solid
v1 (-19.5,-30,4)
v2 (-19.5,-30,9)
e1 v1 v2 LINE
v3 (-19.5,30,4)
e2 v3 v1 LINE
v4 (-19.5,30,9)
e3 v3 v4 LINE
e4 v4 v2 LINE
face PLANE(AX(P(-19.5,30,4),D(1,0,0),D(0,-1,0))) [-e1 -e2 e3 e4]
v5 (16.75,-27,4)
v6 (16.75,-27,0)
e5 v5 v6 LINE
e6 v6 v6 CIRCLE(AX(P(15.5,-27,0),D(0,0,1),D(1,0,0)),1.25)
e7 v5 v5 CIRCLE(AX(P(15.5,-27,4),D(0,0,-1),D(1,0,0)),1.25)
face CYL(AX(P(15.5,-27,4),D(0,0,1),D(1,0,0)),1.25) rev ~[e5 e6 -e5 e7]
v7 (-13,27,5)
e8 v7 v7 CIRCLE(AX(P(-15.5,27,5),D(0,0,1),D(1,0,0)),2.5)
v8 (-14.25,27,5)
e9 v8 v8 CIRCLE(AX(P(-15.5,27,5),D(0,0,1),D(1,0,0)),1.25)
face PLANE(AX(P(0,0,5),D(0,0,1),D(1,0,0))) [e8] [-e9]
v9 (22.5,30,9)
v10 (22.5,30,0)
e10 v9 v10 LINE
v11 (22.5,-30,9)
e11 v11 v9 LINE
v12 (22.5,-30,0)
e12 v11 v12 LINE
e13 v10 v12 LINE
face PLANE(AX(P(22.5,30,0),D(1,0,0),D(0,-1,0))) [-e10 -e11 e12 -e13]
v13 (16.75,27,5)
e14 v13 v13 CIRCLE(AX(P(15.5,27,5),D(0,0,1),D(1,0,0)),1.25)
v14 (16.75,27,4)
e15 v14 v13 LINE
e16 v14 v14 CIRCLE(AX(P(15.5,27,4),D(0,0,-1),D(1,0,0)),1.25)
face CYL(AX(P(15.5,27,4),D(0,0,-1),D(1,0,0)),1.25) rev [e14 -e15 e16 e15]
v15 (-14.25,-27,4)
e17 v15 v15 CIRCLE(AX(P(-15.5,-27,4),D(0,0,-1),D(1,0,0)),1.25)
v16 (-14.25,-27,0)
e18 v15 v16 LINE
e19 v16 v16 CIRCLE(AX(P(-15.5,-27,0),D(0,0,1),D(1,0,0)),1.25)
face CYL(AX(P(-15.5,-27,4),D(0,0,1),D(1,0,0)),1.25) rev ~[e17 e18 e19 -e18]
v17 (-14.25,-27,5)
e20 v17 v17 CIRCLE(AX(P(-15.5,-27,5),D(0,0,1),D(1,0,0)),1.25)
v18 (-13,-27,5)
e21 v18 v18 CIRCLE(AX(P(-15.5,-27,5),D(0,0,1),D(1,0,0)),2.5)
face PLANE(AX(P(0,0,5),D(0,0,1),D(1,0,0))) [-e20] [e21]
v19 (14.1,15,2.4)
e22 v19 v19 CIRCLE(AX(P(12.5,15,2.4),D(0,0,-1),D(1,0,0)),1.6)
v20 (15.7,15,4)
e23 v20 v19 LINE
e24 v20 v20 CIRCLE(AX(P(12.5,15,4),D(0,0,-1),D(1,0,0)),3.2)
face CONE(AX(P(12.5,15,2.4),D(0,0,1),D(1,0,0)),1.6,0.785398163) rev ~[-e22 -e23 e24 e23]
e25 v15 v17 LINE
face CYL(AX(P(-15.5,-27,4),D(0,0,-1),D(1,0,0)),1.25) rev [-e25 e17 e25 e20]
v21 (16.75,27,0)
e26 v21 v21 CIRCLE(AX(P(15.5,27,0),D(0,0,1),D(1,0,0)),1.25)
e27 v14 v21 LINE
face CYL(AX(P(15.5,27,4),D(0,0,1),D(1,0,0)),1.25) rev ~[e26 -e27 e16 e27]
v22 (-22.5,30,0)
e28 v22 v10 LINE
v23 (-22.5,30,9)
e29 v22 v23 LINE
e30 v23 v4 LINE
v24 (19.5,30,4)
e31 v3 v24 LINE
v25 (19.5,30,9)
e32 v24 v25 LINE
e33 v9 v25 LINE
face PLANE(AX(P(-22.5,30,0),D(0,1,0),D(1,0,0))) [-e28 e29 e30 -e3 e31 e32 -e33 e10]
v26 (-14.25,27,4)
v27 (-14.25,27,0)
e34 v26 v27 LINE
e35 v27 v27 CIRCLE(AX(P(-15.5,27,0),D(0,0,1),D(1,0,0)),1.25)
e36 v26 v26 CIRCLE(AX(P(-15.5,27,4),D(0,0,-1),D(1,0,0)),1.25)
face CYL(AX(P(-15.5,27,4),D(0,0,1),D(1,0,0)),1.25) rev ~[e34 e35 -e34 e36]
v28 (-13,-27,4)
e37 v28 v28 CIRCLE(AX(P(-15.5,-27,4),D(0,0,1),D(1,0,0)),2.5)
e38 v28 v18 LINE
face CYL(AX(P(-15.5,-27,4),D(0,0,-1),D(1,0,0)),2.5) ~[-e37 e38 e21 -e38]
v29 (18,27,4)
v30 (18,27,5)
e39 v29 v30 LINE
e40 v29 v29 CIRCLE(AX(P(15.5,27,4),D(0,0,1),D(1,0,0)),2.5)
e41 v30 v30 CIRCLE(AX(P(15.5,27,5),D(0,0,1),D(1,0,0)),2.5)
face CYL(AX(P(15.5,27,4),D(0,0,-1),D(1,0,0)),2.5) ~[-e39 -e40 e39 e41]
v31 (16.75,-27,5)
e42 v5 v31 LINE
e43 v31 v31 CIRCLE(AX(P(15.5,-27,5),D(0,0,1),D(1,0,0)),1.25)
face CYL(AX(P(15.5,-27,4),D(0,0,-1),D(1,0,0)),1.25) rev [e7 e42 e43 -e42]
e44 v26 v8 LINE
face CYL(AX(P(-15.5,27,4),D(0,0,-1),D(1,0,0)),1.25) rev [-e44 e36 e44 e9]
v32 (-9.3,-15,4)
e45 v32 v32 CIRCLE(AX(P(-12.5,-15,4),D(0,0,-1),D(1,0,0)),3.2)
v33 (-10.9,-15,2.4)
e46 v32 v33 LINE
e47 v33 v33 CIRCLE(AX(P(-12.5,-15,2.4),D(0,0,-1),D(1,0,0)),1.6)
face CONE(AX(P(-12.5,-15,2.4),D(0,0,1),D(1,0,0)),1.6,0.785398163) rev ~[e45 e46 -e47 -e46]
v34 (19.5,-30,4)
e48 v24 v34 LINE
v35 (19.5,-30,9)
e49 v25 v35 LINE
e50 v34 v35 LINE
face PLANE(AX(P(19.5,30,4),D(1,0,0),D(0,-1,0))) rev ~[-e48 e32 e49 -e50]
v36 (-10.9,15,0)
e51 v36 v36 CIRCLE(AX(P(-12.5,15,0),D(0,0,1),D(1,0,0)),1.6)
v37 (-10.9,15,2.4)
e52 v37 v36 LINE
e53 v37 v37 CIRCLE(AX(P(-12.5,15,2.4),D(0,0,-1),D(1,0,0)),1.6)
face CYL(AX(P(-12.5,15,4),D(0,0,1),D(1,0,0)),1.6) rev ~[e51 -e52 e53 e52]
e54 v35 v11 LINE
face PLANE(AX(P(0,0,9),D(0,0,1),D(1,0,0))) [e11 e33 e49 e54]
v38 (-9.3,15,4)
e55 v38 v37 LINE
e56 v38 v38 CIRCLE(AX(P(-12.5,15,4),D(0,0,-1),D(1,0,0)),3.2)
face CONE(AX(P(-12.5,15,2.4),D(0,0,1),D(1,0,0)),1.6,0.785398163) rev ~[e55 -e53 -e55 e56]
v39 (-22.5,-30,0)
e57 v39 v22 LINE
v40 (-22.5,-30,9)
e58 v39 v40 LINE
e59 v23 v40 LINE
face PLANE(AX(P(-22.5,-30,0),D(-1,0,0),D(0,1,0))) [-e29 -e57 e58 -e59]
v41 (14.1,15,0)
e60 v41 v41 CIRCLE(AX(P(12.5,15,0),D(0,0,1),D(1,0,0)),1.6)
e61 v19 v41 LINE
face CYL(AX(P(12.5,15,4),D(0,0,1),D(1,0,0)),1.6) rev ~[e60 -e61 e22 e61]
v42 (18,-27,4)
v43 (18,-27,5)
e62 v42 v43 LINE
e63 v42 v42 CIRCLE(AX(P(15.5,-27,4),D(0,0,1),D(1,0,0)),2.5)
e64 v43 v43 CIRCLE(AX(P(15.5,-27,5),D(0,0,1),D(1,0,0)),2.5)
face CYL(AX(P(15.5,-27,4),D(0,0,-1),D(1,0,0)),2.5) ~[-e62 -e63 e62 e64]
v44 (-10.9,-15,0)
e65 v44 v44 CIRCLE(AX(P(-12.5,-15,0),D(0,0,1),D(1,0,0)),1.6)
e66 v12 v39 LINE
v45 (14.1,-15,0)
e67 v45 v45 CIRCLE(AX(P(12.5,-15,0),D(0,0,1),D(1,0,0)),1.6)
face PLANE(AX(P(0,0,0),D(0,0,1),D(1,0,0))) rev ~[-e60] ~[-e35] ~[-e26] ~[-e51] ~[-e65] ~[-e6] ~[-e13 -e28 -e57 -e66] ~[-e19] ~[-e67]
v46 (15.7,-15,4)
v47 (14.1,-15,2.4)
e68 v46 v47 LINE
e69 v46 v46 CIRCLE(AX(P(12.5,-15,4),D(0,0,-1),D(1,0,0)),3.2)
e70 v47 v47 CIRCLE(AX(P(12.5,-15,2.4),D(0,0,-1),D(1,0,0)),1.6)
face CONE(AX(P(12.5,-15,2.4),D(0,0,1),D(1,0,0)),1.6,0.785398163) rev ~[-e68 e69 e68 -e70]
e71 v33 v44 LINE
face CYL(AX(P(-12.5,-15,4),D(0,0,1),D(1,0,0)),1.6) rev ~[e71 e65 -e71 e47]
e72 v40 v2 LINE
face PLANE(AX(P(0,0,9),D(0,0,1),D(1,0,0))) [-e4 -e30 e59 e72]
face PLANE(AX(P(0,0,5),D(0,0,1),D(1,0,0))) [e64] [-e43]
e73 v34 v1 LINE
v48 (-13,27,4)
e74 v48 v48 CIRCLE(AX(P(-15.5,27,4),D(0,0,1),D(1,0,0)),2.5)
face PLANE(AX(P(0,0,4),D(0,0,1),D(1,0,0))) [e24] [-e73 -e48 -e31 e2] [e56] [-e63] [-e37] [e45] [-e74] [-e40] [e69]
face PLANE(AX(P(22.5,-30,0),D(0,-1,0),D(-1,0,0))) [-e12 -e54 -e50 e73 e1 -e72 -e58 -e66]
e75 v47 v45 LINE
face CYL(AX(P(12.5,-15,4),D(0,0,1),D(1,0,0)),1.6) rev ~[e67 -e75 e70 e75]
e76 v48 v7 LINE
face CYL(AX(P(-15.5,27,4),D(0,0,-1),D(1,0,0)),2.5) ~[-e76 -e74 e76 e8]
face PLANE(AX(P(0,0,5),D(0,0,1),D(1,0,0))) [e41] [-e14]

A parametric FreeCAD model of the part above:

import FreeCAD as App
import Part
import Sketcher


def edges_at(feature, points):
    """Names of the edges that pass closest to the given points."""
    edges = feature.Shape.Edges
    near = lambda p: min(range(len(edges)), key=lambda i: edges[i].distToShape(Part.Vertex(*p))[0])
    return sorted({f"Edge{near(p) + 1}" for p in points})


def add_polygon(sketch, points):
    """Adds a closed chain of lines whose ends are joined by coincident constraints."""
    first, n = sketch.GeometryCount, len(points)
    for a, b in zip(points, points[1:] + points[:1]):
        sketch.addGeometry(Part.LineSegment(App.Vector(*a, 0), App.Vector(*b, 0)), False)
    for i in range(n):
        sketch.addConstraint(Sketcher.Constraint("Coincident", first + i, 2, first + (i + 1) % n, 1))

doc = App.newDocument("Part")
body = doc.addObject("PartDesign::Body", "Body")

sketch1 = body.newObject("Sketcher::SketchObject", "Sketch")
sketch1.AttachmentSupport = (doc.getObject("XY_Plane"), [""])
sketch1.MapMode = "FlatFace"
add_polygon(sketch1, [(22.5, 30), (-22.5, 30), (-22.5, -30), (22.5, -30)])
sketch1.addConstraint([
    Sketcher.Constraint("Horizontal", 0),
    Sketcher.Constraint("Vertical", 1),
    Sketcher.Constraint("Horizontal", 2),
    Sketcher.Constraint("Vertical", 3),
    Sketcher.Constraint("Symmetric", 0, 2, 2, 2, -1, 1),
    Sketcher.Constraint("DistanceX", 0, 2, 0, 1, 45.0),
    Sketcher.Constraint("DistanceY", 1, 2, 1, 1, 60.0),
])
pad1 = body.newObject("PartDesign::Pad", "Pad")
pad1.Profile = sketch1
pad1.Length = 4

sketch2 = body.newObject("Sketcher::SketchObject", "Sketch001")
sketch2.AttachmentSupport = (doc.getObject("XY_Plane"), [""])
sketch2.MapMode = "FlatFace"
sketch2.AttachmentOffset = App.Placement(App.Vector(0, 0, 4), App.Rotation())
sketch2.addGeometry([
    Part.Circle(App.Vector(-15.5, 27, 0), App.Vector(0, 0, 1), 1.25),
    Part.Circle(App.Vector(15.5, 27, 0), App.Vector(0, 0, 1), 1.25),
    Part.Circle(App.Vector(-15.5, -27, 0), App.Vector(0, 0, 1), 1.25),
    Part.Circle(App.Vector(15.5, -27, 0), App.Vector(0, 0, 1), 1.25),
], False)
sketch2.addConstraint([
    Sketcher.Constraint("Equal", 0, 1),
    Sketcher.Constraint("Equal", 1, 2),
    Sketcher.Constraint("Equal", 2, 3),
    Sketcher.Constraint("Symmetric", 1, 3, 2, 3, -1, 1),
    Sketcher.Constraint("Symmetric", 0, 3, 3, 3, -1, 1),
    Sketcher.Constraint("Symmetric", 0, 3, 1, 3, -2),
    Sketcher.Constraint("Diameter", 0, 2.5),
    Sketcher.Constraint("DistanceY", -1, 1, 0, 3, 27.0),
    Sketcher.Constraint("DistanceX", 0, 3, 1, 3, 31.0),
])
pocket1 = body.newObject("PartDesign::Pocket", "Pocket")
pocket1.Profile = sketch2
pocket1.Length = 4

sketch3 = body.newObject("Sketcher::SketchObject", "Sketch002")
sketch3.AttachmentSupport = (doc.getObject("XY_Plane"), [""])
sketch3.MapMode = "FlatFace"
sketch3.AttachmentOffset = App.Placement(App.Vector(0, 0, 4), App.Rotation())
add_polygon(sketch3, [(-19.5, 30), (-22.5, 30), (-22.5, -30), (-19.5, -30)])
add_polygon(sketch3, [(22.5, 30), (19.5, 30), (19.5, -30), (22.5, -30)])
sketch3.addConstraint([
    Sketcher.Constraint("Horizontal", 0),
    Sketcher.Constraint("Vertical", 1),
    Sketcher.Constraint("Horizontal", 2),
    Sketcher.Constraint("Vertical", 3),
    Sketcher.Constraint("Horizontal", 4),
    Sketcher.Constraint("Vertical", 5),
    Sketcher.Constraint("Horizontal", 6),
    Sketcher.Constraint("Vertical", 7),
    Sketcher.Constraint("Symmetric", 2, 2, 4, 2, -1, 1),
    Sketcher.Constraint("Symmetric", 0, 2, 6, 2, -1, 1),
    Sketcher.Constraint("Horizontal", 3, 2, 4, 2),
    Sketcher.Constraint("DistanceX", 0, 2, 0, 1, 3.0),
    Sketcher.Constraint("DistanceY", 1, 2, 1, 1, 60.0),
    Sketcher.Constraint("DistanceX", 3, 2, 4, 2, 39.0),
])
pad2 = body.newObject("PartDesign::Pad", "Pad001")
pad2.Profile = sketch3
pad2.Length = 5

sketch4 = body.newObject("Sketcher::SketchObject", "Sketch003")
sketch4.AttachmentSupport = (doc.getObject("XY_Plane"), [""])
sketch4.MapMode = "FlatFace"
sketch4.AttachmentOffset = App.Placement(App.Vector(0, 0, 4), App.Rotation())
sketch4.addGeometry([
    Part.Circle(App.Vector(-15.5, 27, 0), App.Vector(0, 0, 1), 2.5),
    Part.Circle(App.Vector(-15.5, 27, 0), App.Vector(0, 0, 1), 1.25),
    Part.Circle(App.Vector(15.5, 27, 0), App.Vector(0, 0, 1), 2.5),
    Part.Circle(App.Vector(15.5, 27, 0), App.Vector(0, 0, 1), 1.25),
    Part.Circle(App.Vector(15.5, -27, 0), App.Vector(0, 0, 1), 2.5),
    Part.Circle(App.Vector(15.5, -27, 0), App.Vector(0, 0, 1), 1.25),
    Part.Circle(App.Vector(-15.5, -27, 0), App.Vector(0, 0, 1), 2.5),
    Part.Circle(App.Vector(-15.5, -27, 0), App.Vector(0, 0, 1), 1.25),
], False)
sketch4.addConstraint([
    Sketcher.Constraint("Coincident", 1, 3, 0, 3),
    Sketcher.Constraint("Coincident", 3, 3, 2, 3),
    Sketcher.Constraint("Coincident", 5, 3, 4, 3),
    Sketcher.Constraint("Coincident", 7, 3, 6, 3),
    Sketcher.Constraint("Equal", 0, 2),
    Sketcher.Constraint("Equal", 1, 3),
    Sketcher.Constraint("Equal", 2, 4),
    Sketcher.Constraint("Equal", 3, 5),
    Sketcher.Constraint("Equal", 4, 6),
    Sketcher.Constraint("Equal", 5, 7),
    Sketcher.Constraint("Symmetric", 0, 3, 4, 3, -1, 1),
    Sketcher.Constraint("Symmetric", 2, 3, 6, 3, -1, 1),
    Sketcher.Constraint("Symmetric", 0, 3, 2, 3, -2),
    Sketcher.Constraint("Diameter", 0, 5.0),
    Sketcher.Constraint("Diameter", 1, 2.5),
    Sketcher.Constraint("DistanceY", -1, 1, 0, 3, 27.0),
    Sketcher.Constraint("DistanceX", 0, 3, 2, 3, 31.0),
])
pad3 = body.newObject("PartDesign::Pad", "Pad002")
pad3.Profile = sketch4
pad3.Length = 1

sketch5 = body.newObject("Sketcher::SketchObject", "Sketch004")
sketch5.AttachmentSupport = (doc.getObject("XY_Plane"), [""])
sketch5.MapMode = "FlatFace"
sketch5.AttachmentOffset = App.Placement(App.Vector(0, 0, 4), App.Rotation())
sketch5.addGeometry([
    Part.Circle(App.Vector(-12.5, 15, 0), App.Vector(0, 0, 1), 1.6),
    Part.Circle(App.Vector(12.5, 15, 0), App.Vector(0, 0, 1), 1.6),
    Part.Circle(App.Vector(-12.5, -15, 0), App.Vector(0, 0, 1), 1.6),
    Part.Circle(App.Vector(12.5, -15, 0), App.Vector(0, 0, 1), 1.6),
], False)
sketch5.addConstraint([
    Sketcher.Constraint("Equal", 0, 1),
    Sketcher.Constraint("Equal", 1, 2),
    Sketcher.Constraint("Equal", 2, 3),
    Sketcher.Constraint("Symmetric", 1, 3, 2, 3, -1, 1),
    Sketcher.Constraint("Symmetric", 0, 3, 3, 3, -1, 1),
    Sketcher.Constraint("Symmetric", 0, 3, 1, 3, -2),
    Sketcher.Constraint("Diameter", 0, 3.2),
    Sketcher.Constraint("DistanceY", -1, 1, 0, 3, 15.0),
    Sketcher.Constraint("DistanceX", 0, 3, 1, 3, 25.0),
])
pocket2 = body.newObject("PartDesign::Pocket", "Pocket001")
pocket2.Profile = sketch5
pocket2.Length = 4
doc.recompute()

chamfer = body.newObject("PartDesign::Chamfer", "Chamfer")
chamfer.Base = (pocket2, edges_at(pocket2, [
    (10.9, -15, 4),
    (-14.1, -15, 4),
    (10.9, 15, 4),
    (-14.1, 15, 4),
]))
chamfer.Size = 1.6

doc.recompute()
